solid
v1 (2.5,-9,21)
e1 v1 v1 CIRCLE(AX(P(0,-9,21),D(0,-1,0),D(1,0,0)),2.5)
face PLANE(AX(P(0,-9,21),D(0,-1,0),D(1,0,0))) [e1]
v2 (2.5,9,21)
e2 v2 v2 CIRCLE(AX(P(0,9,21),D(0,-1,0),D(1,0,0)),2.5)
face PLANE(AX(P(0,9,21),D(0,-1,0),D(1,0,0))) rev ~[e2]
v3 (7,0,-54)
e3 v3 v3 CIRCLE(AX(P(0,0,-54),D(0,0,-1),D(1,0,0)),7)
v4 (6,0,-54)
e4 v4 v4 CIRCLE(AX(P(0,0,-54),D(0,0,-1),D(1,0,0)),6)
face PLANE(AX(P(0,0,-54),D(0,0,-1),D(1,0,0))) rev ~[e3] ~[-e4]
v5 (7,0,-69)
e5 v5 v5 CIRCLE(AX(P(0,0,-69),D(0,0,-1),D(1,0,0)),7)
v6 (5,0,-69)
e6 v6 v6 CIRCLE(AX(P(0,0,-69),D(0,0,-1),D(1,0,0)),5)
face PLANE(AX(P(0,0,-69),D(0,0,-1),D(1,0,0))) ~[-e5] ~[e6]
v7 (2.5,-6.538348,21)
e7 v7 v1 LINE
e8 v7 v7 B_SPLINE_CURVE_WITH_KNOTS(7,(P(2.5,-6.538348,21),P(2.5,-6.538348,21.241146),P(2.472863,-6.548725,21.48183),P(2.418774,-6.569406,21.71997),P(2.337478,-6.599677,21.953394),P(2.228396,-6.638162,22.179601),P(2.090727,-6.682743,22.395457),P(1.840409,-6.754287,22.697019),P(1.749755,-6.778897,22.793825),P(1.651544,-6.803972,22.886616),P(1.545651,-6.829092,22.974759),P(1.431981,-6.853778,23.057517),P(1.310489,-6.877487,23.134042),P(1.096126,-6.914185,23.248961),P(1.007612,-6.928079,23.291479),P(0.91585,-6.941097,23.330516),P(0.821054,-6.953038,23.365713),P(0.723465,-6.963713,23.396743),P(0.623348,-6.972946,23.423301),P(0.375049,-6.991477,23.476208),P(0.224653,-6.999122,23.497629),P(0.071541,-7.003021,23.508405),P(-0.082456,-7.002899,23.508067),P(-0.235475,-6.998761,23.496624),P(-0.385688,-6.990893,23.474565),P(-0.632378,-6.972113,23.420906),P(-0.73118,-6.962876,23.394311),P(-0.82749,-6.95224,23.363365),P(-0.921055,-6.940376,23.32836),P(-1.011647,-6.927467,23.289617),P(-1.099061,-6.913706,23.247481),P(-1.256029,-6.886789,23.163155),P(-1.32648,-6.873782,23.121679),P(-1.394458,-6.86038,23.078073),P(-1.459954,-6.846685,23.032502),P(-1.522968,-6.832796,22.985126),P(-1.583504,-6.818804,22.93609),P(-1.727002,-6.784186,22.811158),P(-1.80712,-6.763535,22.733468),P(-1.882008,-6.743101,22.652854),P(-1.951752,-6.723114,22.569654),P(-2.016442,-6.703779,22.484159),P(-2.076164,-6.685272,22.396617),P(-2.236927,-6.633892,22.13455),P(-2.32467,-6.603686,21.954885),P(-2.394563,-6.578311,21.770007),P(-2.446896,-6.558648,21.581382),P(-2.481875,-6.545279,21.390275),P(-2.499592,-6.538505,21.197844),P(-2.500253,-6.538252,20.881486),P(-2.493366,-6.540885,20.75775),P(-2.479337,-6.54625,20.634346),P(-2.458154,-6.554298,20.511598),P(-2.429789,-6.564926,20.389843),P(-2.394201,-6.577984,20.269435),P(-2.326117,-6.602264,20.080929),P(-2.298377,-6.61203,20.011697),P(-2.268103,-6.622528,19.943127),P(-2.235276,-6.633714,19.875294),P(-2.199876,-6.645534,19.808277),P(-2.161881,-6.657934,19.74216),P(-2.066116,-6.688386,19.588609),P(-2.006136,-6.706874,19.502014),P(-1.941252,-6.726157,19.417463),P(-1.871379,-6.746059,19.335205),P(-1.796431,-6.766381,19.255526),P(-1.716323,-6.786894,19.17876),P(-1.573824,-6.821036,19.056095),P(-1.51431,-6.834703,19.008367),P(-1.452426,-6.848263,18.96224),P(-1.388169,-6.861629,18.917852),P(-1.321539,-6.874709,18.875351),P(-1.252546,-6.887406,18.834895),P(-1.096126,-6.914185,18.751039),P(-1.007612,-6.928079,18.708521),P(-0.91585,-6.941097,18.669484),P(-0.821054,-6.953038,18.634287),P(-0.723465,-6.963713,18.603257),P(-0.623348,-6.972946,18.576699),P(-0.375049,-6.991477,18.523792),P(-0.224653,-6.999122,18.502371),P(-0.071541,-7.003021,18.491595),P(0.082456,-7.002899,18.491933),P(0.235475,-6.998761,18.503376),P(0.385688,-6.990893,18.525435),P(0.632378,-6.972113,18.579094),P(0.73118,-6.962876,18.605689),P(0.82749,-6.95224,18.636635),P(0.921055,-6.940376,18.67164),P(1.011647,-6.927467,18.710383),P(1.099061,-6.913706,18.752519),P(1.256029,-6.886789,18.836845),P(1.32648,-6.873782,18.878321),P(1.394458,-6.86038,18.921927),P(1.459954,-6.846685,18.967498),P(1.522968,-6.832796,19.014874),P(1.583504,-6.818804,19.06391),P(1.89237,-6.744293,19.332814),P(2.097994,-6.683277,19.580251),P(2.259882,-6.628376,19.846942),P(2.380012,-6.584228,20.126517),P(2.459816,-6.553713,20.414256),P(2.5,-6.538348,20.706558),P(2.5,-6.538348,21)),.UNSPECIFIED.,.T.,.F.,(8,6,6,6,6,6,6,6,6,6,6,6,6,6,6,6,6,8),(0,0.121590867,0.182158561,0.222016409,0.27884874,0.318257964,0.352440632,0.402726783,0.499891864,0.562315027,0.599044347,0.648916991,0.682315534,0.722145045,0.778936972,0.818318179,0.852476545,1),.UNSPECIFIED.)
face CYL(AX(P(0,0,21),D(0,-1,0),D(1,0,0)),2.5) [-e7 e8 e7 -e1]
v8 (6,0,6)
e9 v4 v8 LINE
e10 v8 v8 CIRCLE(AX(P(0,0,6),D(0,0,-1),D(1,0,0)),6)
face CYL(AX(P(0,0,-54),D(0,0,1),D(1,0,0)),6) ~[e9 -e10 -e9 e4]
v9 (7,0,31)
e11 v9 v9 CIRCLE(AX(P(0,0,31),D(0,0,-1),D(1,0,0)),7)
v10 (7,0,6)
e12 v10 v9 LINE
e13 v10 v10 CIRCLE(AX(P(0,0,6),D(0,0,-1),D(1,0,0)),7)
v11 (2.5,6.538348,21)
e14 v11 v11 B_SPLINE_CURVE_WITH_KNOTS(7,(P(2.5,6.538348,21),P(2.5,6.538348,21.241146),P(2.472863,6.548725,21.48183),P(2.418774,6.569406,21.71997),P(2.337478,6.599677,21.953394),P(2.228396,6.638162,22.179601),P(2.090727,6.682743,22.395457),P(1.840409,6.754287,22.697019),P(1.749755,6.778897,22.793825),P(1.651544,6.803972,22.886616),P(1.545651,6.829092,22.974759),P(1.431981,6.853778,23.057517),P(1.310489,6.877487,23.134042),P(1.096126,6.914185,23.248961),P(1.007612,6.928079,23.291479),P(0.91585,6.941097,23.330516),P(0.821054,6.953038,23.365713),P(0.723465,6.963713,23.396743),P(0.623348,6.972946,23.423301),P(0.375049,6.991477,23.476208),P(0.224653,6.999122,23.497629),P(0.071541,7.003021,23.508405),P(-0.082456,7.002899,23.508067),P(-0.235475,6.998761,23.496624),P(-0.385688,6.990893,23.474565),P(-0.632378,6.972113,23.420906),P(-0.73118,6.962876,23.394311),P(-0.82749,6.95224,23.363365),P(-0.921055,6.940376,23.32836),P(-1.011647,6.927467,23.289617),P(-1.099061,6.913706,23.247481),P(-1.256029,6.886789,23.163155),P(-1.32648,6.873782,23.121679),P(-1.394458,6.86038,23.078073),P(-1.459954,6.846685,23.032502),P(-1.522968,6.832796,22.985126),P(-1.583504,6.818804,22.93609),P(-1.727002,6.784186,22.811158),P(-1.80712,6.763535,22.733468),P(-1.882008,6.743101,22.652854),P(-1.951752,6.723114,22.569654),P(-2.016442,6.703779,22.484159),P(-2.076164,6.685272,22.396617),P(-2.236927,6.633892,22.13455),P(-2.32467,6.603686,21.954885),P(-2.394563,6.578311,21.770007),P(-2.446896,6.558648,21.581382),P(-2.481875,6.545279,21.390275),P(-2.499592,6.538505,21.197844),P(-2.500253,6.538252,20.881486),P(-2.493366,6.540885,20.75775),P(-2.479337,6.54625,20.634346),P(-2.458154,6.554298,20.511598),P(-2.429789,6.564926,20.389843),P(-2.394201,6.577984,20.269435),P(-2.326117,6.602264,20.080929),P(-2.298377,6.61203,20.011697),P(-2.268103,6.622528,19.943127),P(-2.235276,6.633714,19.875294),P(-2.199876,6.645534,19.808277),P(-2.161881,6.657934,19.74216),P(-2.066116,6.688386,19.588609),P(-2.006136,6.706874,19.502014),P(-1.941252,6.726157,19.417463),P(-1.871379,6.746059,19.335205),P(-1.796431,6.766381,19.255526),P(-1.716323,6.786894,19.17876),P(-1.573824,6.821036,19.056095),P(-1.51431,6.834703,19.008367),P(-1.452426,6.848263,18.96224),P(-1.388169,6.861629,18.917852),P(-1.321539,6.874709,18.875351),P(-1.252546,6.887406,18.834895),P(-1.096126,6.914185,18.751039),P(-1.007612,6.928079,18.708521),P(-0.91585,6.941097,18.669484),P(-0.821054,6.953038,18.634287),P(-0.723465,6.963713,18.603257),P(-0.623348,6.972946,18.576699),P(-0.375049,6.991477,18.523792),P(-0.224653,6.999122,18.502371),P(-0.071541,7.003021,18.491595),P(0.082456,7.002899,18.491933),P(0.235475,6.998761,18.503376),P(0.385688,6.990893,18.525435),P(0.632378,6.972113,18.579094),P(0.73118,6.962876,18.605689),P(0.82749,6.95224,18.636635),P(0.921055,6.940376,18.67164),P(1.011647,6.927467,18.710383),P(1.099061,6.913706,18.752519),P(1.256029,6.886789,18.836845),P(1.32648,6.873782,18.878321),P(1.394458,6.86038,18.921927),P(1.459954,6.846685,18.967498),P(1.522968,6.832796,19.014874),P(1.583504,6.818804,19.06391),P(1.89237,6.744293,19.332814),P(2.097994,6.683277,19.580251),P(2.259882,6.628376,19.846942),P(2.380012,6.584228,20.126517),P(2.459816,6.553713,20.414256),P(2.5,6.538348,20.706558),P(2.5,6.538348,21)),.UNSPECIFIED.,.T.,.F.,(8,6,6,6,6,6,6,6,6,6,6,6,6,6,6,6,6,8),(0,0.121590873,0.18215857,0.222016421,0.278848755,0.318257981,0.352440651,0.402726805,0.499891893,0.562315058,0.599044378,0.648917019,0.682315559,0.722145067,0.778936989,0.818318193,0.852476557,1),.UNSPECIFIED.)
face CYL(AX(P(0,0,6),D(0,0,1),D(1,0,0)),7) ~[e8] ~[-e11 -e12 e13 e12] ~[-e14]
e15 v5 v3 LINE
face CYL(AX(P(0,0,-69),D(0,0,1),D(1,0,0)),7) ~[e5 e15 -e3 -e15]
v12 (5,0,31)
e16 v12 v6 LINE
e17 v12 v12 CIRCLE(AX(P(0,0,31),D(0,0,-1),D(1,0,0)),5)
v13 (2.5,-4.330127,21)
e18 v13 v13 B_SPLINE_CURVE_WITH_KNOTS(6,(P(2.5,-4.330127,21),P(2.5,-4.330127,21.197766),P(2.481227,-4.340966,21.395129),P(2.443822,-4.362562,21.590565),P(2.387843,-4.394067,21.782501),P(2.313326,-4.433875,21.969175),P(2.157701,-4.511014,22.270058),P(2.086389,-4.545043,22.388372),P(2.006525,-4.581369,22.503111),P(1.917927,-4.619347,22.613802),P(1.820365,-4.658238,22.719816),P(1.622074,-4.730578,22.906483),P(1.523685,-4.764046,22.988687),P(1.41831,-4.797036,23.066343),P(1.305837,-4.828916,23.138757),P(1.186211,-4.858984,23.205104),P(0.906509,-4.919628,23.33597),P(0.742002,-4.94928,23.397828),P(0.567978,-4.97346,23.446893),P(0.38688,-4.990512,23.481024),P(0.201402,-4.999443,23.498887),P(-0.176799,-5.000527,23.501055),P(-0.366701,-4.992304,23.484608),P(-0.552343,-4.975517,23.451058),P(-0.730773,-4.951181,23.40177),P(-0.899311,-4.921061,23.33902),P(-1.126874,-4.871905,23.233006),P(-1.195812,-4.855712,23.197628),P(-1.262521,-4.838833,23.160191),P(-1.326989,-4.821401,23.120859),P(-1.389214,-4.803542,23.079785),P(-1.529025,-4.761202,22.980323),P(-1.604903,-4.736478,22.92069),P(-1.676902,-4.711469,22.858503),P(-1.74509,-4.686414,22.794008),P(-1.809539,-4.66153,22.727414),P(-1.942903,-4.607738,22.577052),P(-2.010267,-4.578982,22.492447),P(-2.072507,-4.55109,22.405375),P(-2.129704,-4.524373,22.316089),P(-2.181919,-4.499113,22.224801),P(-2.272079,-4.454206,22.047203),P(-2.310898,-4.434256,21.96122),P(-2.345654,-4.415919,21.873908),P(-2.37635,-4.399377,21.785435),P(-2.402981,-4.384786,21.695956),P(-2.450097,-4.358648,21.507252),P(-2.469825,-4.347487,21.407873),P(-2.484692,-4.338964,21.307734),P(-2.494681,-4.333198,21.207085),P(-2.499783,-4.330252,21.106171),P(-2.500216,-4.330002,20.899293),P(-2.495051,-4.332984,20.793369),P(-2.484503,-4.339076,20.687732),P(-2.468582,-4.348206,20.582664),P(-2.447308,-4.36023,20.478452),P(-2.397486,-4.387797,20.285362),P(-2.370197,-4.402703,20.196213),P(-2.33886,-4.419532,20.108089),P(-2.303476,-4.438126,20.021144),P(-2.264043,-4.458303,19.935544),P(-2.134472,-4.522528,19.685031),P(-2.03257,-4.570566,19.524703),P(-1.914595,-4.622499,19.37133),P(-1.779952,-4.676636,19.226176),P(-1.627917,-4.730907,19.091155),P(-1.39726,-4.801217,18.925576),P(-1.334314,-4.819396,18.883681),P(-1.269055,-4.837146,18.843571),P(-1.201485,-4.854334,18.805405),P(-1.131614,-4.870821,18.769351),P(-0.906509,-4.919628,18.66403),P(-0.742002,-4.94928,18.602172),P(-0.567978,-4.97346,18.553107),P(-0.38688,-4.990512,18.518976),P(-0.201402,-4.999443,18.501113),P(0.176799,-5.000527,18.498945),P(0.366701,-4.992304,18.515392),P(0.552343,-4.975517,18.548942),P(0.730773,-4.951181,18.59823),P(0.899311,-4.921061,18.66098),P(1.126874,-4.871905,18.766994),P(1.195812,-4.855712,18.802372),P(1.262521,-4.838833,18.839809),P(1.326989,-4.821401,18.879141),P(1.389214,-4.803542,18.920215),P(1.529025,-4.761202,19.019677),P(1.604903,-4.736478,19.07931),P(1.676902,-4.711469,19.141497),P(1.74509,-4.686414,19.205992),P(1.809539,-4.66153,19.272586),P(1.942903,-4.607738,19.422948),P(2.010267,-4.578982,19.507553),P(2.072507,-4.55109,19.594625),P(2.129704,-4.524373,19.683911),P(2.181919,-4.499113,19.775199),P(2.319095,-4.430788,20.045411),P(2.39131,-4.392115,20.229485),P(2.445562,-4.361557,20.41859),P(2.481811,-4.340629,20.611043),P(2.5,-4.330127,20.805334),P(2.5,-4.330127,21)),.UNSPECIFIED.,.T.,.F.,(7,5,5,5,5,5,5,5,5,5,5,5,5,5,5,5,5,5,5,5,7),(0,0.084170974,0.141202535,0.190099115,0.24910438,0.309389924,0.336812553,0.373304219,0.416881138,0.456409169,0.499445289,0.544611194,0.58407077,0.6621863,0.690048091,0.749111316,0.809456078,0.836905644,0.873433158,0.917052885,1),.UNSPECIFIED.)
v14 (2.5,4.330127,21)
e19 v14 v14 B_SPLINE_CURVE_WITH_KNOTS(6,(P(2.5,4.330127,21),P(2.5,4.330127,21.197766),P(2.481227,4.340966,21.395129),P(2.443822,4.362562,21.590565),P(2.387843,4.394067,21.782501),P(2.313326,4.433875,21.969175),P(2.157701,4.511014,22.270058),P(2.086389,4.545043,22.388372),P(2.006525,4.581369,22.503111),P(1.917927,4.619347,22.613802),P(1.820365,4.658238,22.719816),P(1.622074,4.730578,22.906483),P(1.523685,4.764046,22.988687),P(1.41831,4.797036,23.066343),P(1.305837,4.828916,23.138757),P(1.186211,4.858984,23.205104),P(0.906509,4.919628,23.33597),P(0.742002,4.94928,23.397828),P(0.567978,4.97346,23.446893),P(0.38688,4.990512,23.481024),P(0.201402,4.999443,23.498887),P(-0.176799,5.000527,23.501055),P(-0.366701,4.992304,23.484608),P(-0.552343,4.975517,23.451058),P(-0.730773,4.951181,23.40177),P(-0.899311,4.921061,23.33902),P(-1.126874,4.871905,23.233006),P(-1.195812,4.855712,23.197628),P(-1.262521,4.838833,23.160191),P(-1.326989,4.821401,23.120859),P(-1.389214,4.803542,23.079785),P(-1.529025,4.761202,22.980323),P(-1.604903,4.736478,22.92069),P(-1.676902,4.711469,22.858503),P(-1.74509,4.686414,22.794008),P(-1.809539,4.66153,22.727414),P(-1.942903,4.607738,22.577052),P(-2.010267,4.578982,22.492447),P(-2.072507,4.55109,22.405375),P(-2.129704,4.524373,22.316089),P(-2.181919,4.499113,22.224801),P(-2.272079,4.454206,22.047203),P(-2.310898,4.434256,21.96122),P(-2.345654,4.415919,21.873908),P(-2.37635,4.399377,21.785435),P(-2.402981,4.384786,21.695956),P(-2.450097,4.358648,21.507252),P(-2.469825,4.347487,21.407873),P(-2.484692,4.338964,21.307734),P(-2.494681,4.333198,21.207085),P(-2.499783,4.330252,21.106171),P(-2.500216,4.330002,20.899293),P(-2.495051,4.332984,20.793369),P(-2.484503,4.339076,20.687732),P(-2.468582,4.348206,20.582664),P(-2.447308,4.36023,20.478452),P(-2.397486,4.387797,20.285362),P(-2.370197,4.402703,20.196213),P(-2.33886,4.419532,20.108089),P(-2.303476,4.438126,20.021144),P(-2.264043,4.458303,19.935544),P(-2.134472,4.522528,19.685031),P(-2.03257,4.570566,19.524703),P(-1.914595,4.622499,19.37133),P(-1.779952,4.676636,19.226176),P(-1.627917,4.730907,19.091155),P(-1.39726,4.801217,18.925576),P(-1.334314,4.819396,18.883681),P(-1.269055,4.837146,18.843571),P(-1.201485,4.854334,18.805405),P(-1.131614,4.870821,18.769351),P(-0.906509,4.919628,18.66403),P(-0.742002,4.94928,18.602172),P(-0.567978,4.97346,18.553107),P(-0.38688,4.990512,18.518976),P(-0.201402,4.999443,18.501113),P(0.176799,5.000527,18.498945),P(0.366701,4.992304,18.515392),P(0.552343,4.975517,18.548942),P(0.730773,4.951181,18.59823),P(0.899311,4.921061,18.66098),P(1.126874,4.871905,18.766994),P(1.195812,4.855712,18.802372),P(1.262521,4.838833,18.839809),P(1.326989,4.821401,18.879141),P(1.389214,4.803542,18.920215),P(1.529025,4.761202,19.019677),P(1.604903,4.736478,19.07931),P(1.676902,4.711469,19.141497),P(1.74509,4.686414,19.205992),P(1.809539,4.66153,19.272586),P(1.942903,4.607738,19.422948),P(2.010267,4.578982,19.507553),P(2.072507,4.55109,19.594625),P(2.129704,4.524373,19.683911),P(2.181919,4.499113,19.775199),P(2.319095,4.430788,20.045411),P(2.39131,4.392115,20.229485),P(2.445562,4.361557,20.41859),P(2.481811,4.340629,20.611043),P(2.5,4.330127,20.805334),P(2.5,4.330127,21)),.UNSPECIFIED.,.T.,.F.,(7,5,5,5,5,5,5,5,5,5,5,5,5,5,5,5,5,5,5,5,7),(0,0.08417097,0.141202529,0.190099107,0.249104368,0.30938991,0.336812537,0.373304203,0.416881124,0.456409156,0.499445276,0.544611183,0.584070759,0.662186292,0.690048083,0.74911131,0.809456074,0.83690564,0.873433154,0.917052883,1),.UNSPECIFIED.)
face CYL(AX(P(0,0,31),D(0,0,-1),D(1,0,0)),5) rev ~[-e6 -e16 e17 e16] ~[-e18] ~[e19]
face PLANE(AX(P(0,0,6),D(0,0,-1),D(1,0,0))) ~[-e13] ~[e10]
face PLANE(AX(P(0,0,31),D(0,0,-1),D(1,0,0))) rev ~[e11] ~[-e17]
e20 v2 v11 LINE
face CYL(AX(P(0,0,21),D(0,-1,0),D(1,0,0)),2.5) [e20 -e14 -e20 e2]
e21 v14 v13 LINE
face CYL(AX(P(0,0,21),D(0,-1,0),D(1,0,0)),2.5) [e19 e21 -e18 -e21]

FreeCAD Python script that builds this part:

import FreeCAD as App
import Part
import Sketcher

V = App.Vector
Q = App.Units.Quantity


def add_polygon(sketch, points):
    """Adds a closed chain of lines whose ends are joined by coincident constraints."""
    first, n = sketch.GeometryCount, len(points)
    for a, b in zip(points, points[1:] + points[:1]):
        sketch.addGeometry(Part.LineSegment(App.Vector(*a, 0), App.Vector(*b, 0)), False)
    for i in range(n):
        sketch.addConstraint(Sketcher.Constraint("Coincident", first + i, 2, first + (i + 1) % n, 1))

doc = App.newDocument("Part")
body = doc.addObject("PartDesign::Body", "Body")

# Sketch on XZ plane
sketch1 = body.newObject("Sketcher::SketchObject", "Sketch")
sketch1.AttachmentSupport = (doc.getObject("XZ_Plane"), [""])
sketch1.MapMode = "FlatFace"
add_polygon(sketch1, [(7, 31), (5, 31), (5, -69), (7, -69), (7, -54), (6, -54), (6, 6), (7, 6)])  # lines 0-7
sketch1.addConstraint([
    Sketcher.Constraint("Horizontal", 0),
    Sketcher.Constraint("Vertical", 1),
    Sketcher.Constraint("Horizontal", 2),
    Sketcher.Constraint("Vertical", 3),
    Sketcher.Constraint("Horizontal", 4),
    Sketcher.Constraint("Vertical", 5),
    Sketcher.Constraint("Horizontal", 6),
    Sketcher.Constraint("Vertical", 7),
    Sketcher.Constraint("Vertical", 3, 2, 6, 2),
    Sketcher.Constraint("DistanceX", 0, 2, 0, 1, Q("2 mm")),
    Sketcher.Constraint("DistanceX", 4, 2, 4, 1, Q("1 mm")),
    Sketcher.Constraint("DistanceY", 1, 2, 1, 1, Q("100 mm")),
    Sketcher.Constraint("DistanceY", 3, 1, 3, 2, Q("15 mm")),
    Sketcher.Constraint("DistanceY", 5, 1, 5, 2, Q("60 mm")),
    Sketcher.Constraint("DistanceX", -1, 1, 0, 2, Q("5 mm")),
    Sketcher.Constraint("DistanceY", -1, 1, 0, 2, Q("31 mm")),
])
revolution = body.newObject("PartDesign::Revolution", "Revolution")
revolution.Profile = sketch1
revolution.ReferenceAxis = (sketch1, ["V_Axis"])
revolution.Angle = 360

# Sketch on XZ plane
sketch2 = body.newObject("Sketcher::SketchObject", "Sketch001")
sketch2.AttachmentSupport = (doc.getObject("XZ_Plane"), [""])
sketch2.MapMode = "FlatFace"
sketch2.addGeometry(Part.Circle(V(0, 21, 0), V(0, 0, 1), 2.5), False)
sketch2.addConstraint([
    Sketcher.Constraint("PointOnObject", 0, 3, -2),
    Sketcher.Constraint("Diameter", 0, Q("5 mm")),
    Sketcher.Constraint("DistanceY", -1, 1, 0, 3, Q("21 mm")),
])
pad1 = body.newObject("PartDesign::Pad", "Pad")
pad1.Profile = sketch2
pad1.Length = 18
pad1.Midplane = True

doc.recompute()
